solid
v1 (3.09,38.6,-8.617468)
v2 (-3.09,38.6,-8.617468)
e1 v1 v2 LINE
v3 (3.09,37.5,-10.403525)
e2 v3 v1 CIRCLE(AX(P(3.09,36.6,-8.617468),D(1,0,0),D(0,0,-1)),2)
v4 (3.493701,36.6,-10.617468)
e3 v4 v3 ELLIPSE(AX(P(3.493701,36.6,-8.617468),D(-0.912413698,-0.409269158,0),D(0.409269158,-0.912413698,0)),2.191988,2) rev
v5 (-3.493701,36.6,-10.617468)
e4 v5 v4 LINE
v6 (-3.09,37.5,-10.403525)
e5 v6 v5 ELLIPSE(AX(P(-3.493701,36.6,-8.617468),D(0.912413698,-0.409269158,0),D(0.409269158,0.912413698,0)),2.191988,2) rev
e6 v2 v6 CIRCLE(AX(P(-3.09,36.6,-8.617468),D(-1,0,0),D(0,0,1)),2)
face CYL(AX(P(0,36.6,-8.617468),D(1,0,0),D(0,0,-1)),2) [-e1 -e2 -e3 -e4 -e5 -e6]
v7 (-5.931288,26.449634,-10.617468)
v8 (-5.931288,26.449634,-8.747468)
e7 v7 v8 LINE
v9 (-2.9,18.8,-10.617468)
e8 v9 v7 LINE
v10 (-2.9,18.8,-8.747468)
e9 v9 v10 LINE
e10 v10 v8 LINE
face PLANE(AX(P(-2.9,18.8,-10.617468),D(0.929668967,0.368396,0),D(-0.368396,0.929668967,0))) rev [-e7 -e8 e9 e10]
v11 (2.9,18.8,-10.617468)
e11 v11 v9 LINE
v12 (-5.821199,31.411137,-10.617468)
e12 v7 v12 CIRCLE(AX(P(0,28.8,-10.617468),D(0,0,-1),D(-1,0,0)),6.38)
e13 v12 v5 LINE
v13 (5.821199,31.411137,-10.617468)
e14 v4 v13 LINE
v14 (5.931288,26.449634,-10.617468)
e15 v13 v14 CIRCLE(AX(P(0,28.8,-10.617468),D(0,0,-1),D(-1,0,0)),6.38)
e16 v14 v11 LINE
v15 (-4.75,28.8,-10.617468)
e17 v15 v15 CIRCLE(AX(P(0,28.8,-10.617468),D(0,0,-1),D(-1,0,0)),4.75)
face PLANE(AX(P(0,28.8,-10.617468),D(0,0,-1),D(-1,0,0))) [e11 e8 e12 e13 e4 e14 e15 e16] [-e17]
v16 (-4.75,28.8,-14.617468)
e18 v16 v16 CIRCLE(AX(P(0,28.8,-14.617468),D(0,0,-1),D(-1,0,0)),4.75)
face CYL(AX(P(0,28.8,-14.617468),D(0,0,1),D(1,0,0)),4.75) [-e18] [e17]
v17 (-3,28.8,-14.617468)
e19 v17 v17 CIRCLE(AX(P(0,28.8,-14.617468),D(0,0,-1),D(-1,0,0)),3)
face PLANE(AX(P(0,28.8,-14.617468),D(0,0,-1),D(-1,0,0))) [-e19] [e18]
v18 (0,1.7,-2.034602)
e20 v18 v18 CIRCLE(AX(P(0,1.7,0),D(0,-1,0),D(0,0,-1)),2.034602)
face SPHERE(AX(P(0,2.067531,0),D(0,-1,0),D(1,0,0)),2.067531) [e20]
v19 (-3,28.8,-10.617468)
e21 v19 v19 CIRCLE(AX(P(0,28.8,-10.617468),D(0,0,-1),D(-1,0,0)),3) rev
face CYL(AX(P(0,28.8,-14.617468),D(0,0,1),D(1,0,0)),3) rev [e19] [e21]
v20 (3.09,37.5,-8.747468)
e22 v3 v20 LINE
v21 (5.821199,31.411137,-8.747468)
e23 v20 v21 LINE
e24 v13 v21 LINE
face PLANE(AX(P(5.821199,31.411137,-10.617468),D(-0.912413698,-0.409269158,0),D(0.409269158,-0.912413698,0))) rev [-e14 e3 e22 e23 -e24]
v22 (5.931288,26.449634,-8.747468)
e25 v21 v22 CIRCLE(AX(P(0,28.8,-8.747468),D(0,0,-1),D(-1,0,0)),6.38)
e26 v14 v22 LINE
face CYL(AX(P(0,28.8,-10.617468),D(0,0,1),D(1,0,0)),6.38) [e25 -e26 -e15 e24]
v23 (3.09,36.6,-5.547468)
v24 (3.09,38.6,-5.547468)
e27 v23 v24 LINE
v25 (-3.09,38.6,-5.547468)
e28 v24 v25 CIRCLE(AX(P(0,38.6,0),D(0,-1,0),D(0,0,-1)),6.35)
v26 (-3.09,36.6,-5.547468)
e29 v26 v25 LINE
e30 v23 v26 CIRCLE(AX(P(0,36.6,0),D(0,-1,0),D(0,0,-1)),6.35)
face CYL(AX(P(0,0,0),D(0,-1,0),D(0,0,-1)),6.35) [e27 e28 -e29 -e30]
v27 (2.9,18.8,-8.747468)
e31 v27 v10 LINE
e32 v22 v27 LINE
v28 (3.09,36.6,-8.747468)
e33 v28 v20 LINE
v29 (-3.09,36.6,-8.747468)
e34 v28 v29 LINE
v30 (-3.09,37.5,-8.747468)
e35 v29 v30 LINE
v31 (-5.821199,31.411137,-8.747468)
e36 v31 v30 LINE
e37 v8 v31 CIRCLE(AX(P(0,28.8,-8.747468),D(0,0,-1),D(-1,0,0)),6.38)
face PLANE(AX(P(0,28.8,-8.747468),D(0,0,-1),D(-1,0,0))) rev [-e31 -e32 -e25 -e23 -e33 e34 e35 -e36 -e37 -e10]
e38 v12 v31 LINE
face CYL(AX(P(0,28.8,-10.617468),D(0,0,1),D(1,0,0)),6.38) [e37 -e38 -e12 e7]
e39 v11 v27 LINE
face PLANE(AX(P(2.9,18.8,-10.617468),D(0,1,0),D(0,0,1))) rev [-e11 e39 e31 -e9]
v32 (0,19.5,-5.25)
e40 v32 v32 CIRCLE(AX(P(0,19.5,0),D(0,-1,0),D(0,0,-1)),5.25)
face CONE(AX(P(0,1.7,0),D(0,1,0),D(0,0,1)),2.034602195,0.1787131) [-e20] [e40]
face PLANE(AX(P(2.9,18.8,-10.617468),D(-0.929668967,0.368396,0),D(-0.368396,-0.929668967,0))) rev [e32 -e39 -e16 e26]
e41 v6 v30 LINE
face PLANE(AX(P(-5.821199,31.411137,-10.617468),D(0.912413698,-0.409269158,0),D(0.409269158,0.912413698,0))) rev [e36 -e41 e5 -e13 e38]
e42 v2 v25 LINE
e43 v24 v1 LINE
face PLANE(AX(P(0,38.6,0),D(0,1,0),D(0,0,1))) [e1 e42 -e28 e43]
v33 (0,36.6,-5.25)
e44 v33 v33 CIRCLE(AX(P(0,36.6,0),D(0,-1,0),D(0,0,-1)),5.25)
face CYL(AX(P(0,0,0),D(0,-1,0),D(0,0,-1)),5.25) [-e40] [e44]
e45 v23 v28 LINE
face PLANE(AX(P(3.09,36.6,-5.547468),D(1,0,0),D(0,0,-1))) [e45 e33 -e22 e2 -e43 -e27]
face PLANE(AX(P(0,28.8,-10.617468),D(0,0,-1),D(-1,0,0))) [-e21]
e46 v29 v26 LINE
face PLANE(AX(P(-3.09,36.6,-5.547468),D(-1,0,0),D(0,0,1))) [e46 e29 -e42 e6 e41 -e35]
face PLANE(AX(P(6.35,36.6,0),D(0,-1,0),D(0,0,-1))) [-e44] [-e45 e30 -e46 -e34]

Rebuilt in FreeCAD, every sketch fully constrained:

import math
import FreeCAD as App
import Part
import Sketcher

V = App.Vector
Q = App.Units.Quantity


def edges_at(feature, points):
    """Names of the edges that pass closest to the given points."""
    edges = feature.Shape.Edges
    near = lambda p: min(range(len(edges)), key=lambda i: edges[i].distToShape(Part.Vertex(*p))[0])
    return sorted({f"Edge{near(p) + 1}" for p in points})


def add_polygon(sketch, points):
    """Adds a closed chain of lines whose ends are joined by coincident constraints."""
    first, n = sketch.GeometryCount, len(points)
    for a, b in zip(points, points[1:] + points[:1]):
        sketch.addGeometry(Part.LineSegment(App.Vector(*a, 0), App.Vector(*b, 0)), False)
    for i in range(n):
        sketch.addConstraint(Sketcher.Constraint("Coincident", first + i, 2, first + (i + 1) % n, 1))

doc = App.newDocument("Part")
body = doc.addObject("PartDesign::Body", "Body")

sketch1 = doc.addObject("Sketcher::SketchObject", "Sketch")
body.addObject(sketch1)
sketch1.AttachmentSupport = (doc.XY_Plane, [""])
sketch1.MapMode = "FlatFace"
sketch1.addGeometry(Part.LineSegment(V(5.25, 19.5, 0), V(5.25, 36.6, 0)), False)
sketch1.addGeometry(Part.LineSegment(V(5.25, 36.6, 0), V(6.35, 36.6, 0)), False)
sketch1.addGeometry(Part.LineSegment(V(6.35, 36.6, 0), V(6.35, 38.6, 0)), False)
sketch1.addGeometry(Part.LineSegment(V(6.35, 38.6, 0), V(0, 38.6, 0)), False)
sketch1.addGeometry(Part.LineSegment(V(0, 38.6, 0), V(0, 0, 0)), False)
sketch1.addGeometry(Part.ArcOfCircle(Part.Circle(V(0, 2.067531, 0), V(0, 0, 1), 2.067531), math.radians(-90), math.radians(-10.239506)), False)
sketch1.addGeometry(Part.LineSegment(V(2.034602, 1.7, 0), V(5.25, 19.5, 0)), False)
sketch1.addConstraint(Sketcher.Constraint("Coincident", 0, 2, 1, 1))
sketch1.addConstraint(Sketcher.Constraint("Coincident", 1, 2, 2, 1))
sketch1.addConstraint(Sketcher.Constraint("Coincident", 2, 2, 3, 1))
sketch1.addConstraint(Sketcher.Constraint("Coincident", 3, 2, 4, 1))
sketch1.addConstraint(Sketcher.Constraint("Coincident", 4, 2, 5, 1))
sketch1.addConstraint(Sketcher.Constraint("Tangent", 5, 2, 6, 1))
sketch1.addConstraint(Sketcher.Constraint("Coincident", 6, 2, 0, 1))
sketch1.addConstraint(Sketcher.Constraint("Vertical", 0))
sketch1.addConstraint(Sketcher.Constraint("Horizontal", 1))
sketch1.addConstraint(Sketcher.Constraint("Vertical", 2))
sketch1.addConstraint(Sketcher.Constraint("Horizontal", 3))
sketch1.addConstraint(Sketcher.Constraint("Vertical", 4))
sketch1.addConstraint(Sketcher.Constraint("Coincident", 4, 2, -1, 1))
sketch1.addConstraint(Sketcher.Constraint("PointOnObject", 5, 3, -2))
sketch1.addConstraint(Sketcher.Constraint("DistanceY", 2, 1, 2, 2, Q("2 mm")))
sketch1.addConstraint(Sketcher.Constraint("DistanceX", 1, 1, 1, 2, Q("1.1 mm")))
sketch1.addConstraint(Sketcher.Constraint("DistanceY", 0, 1, 0, 2, Q("17.1 mm")))
sketch1.addConstraint(Sketcher.Constraint("DistanceY", 4, 2, 4, 1, Q("38.6 mm")))
sketch1.addConstraint(Sketcher.Constraint("DistanceX", 3, 2, 3, 1, Q("6.35 mm")))
sketch1.addConstraint(Sketcher.Constraint("DistanceY", -1, 1, 5, 2, Q("1.7 mm")))
revolution = doc.addObject("PartDesign::Revolution", "Revolution")
body.addObject(revolution)
revolution.Profile = sketch1
revolution.ReferenceAxis = (sketch1, ["V_Axis"])
revolution.Angle = 360

sketch2 = doc.addObject("Sketcher::SketchObject", "Sketch001")
body.addObject(sketch2)
sketch2.AttachmentSupport = (doc.XZ_Plane, [""])
sketch2.MapMode = "FlatFace"
sketch2.AttachmentOffset = App.Placement(V(0, 0, -38.6), App.Rotation())
add_polygon(sketch2, [(-3.09, -8.747468), (-3.09, -5.547468), (3.09, -5.547468), (3.09, -8.747468)])
sketch2.addConstraint(Sketcher.Constraint("Vertical", 0))
sketch2.addConstraint(Sketcher.Constraint("Horizontal", 1))
sketch2.addConstraint(Sketcher.Constraint("Vertical", 2))
sketch2.addConstraint(Sketcher.Constraint("Horizontal", 3))
sketch2.addConstraint(Sketcher.Constraint("DistanceY", 0, 1, 0, 2, Q("3.2 mm")))
sketch2.addConstraint(Sketcher.Constraint("DistanceX", 1, 1, 1, 2, Q("6.18 mm")))
sketch2.addConstraint(Sketcher.Constraint("DistanceX", 0, 2, -1, 1, Q("3.09 mm")))
sketch2.addConstraint(Sketcher.Constraint("DistanceY", 0, 2, -1, 1, Q("5.547468 mm")))
pad1 = doc.addObject("PartDesign::Pad", "Pad")
body.addObject(pad1)
pad1.Profile = sketch2
pad1.Length = 2

sketch3 = doc.addObject("Sketcher::SketchObject", "Sketch002")
body.addObject(sketch3)
sketch3.AttachmentSupport = (doc.XY_Plane, [""])
sketch3.MapMode = "FlatFace"
sketch3.AttachmentOffset = App.Placement(V(0, 0, -8.747468), App.Rotation())
sketch3.addGeometry(Part.LineSegment(V(2.9, 18.8, 0), V(-2.9, 18.8, 0)), False)
sketch3.addGeometry(Part.LineSegment(V(-2.9, 18.8, 0), V(-5.931288, 26.449634, 0)), False)
sketch3.addGeometry(Part.ArcOfCircle(Part.Circle(V(0, 28.8, 0), V(0, 0, 1), 6.38), math.radians(155.841067), math.radians(201.616728)), False)
sketch3.addGeometry(Part.LineSegment(V(-5.821199, 31.411137, 0), V(-3.09, 37.5, 0)), False)
sketch3.addGeometry(Part.LineSegment(V(-3.09, 37.5, 0), V(-3.09, 38.6, 0)), False)
sketch3.addGeometry(Part.LineSegment(V(-3.09, 38.6, 0), V(3.09, 38.6, 0)), False)
sketch3.addGeometry(Part.LineSegment(V(3.09, 38.6, 0), V(3.09, 37.5, 0)), False)
sketch3.addGeometry(Part.LineSegment(V(3.09, 37.5, 0), V(5.821199, 31.411137, 0)), False)
sketch3.addGeometry(Part.ArcOfCircle(Part.Circle(V(0, 28.8, 0), V(0, 0, 1), 6.38), math.radians(-21.616728), math.radians(24.158933)), False)
sketch3.addGeometry(Part.LineSegment(V(5.931288, 26.449634, 0), V(2.9, 18.8, 0)), False)
sketch3.addConstraint(Sketcher.Constraint("Coincident", 0, 2, 1, 1))
sketch3.addConstraint(Sketcher.Constraint("Tangent", 1, 2, 2, 2))
sketch3.addConstraint(Sketcher.Constraint("Tangent", 2, 1, 3, 1))
sketch3.addConstraint(Sketcher.Constraint("Coincident", 3, 2, 4, 1))
sketch3.addConstraint(Sketcher.Constraint("Coincident", 4, 2, 5, 1))
sketch3.addConstraint(Sketcher.Constraint("Coincident", 5, 2, 6, 1))
sketch3.addConstraint(Sketcher.Constraint("Coincident", 6, 2, 7, 1))
sketch3.addConstraint(Sketcher.Constraint("Tangent", 7, 2, 8, 2))
sketch3.addConstraint(Sketcher.Constraint("Tangent", 8, 1, 9, 1))
sketch3.addConstraint(Sketcher.Constraint("Coincident", 9, 2, 0, 1))
sketch3.addConstraint(Sketcher.Constraint("Horizontal", 0))
sketch3.addConstraint(Sketcher.Constraint("Vertical", 4))
sketch3.addConstraint(Sketcher.Constraint("Horizontal", 5))
sketch3.addConstraint(Sketcher.Constraint("Vertical", 6))
sketch3.addConstraint(Sketcher.Constraint("Coincident", 8, 3, 2, 3))
sketch3.addConstraint(Sketcher.Constraint("Equal", 2, 8))
sketch3.addConstraint(Sketcher.Constraint("Symmetric", 3, 2, 6, 2, -2))
sketch3.addConstraint(Sketcher.Constraint("Symmetric", 1, 2, 8, 1, -2))
sketch3.addConstraint(Sketcher.Constraint("Radius", 2, Q("6.38 mm")))
sketch3.addConstraint(Sketcher.Constraint("DistanceX", 0, 2, 0, 1, Q("5.8 mm")))
sketch3.addConstraint(Sketcher.Constraint("DistanceY", 4, 1, 4, 2, Q("1.1 mm")))
sketch3.addConstraint(Sketcher.Constraint("DistanceY", 0, 2, 8, 3, Q("10 mm")))
sketch3.addConstraint(Sketcher.Constraint("DistanceX", 5, 1, 5, 2, Q("6.18 mm")))
sketch3.addConstraint(Sketcher.Constraint("DistanceY", -1, 1, 2, 3, Q("28.8 mm")))
sketch3.addConstraint(Sketcher.Constraint("DistanceY", -1, 1, 3, 2, Q("37.5 mm")))
pad2 = doc.addObject("PartDesign::Pad", "Pad001")
body.addObject(pad2)
pad2.Profile = sketch3
pad2.Length = 1.87
pad2.Reversed = True

sketch4 = doc.addObject("Sketcher::SketchObject", "Sketch003")
body.addObject(sketch4)
sketch4.AttachmentSupport = (doc.XY_Plane, [""])
sketch4.MapMode = "FlatFace"
sketch4.AttachmentOffset = App.Placement(V(0, 0, -10.617468), App.Rotation())
sketch4.addGeometry(Part.Circle(V(0, 28.8, 0), V(0, 0, 1), 4.75), False)
sketch4.addGeometry(Part.Circle(V(0, 28.8, 0), V(0, 0, 1), 3), False)
sketch4.addConstraint(Sketcher.Constraint("Coincident", 1, 3, 0, 3))
sketch4.addConstraint(Sketcher.Constraint("PointOnObject", 0, 3, -2))
sketch4.addConstraint(Sketcher.Constraint("Diameter", 1, Q("6 mm")))
sketch4.addConstraint(Sketcher.Constraint("Diameter", 0, Q("9.5 mm")))
sketch4.addConstraint(Sketcher.Constraint("DistanceY", -1, 1, 0, 3, Q("28.8 mm")))
pad3 = doc.addObject("PartDesign::Pad", "Pad002")
body.addObject(pad3)
pad3.Profile = sketch4
pad3.Length = 4
pad3.Reversed = True
doc.recompute()

fillet = doc.addObject("PartDesign::Fillet", "Fillet")
body.addObject(fillet)
fillet.Base = (pad3, edges_at(pad3, [(0, 38.6, -10.617)]))
fillet.Radius = 2

doc.recompute()
